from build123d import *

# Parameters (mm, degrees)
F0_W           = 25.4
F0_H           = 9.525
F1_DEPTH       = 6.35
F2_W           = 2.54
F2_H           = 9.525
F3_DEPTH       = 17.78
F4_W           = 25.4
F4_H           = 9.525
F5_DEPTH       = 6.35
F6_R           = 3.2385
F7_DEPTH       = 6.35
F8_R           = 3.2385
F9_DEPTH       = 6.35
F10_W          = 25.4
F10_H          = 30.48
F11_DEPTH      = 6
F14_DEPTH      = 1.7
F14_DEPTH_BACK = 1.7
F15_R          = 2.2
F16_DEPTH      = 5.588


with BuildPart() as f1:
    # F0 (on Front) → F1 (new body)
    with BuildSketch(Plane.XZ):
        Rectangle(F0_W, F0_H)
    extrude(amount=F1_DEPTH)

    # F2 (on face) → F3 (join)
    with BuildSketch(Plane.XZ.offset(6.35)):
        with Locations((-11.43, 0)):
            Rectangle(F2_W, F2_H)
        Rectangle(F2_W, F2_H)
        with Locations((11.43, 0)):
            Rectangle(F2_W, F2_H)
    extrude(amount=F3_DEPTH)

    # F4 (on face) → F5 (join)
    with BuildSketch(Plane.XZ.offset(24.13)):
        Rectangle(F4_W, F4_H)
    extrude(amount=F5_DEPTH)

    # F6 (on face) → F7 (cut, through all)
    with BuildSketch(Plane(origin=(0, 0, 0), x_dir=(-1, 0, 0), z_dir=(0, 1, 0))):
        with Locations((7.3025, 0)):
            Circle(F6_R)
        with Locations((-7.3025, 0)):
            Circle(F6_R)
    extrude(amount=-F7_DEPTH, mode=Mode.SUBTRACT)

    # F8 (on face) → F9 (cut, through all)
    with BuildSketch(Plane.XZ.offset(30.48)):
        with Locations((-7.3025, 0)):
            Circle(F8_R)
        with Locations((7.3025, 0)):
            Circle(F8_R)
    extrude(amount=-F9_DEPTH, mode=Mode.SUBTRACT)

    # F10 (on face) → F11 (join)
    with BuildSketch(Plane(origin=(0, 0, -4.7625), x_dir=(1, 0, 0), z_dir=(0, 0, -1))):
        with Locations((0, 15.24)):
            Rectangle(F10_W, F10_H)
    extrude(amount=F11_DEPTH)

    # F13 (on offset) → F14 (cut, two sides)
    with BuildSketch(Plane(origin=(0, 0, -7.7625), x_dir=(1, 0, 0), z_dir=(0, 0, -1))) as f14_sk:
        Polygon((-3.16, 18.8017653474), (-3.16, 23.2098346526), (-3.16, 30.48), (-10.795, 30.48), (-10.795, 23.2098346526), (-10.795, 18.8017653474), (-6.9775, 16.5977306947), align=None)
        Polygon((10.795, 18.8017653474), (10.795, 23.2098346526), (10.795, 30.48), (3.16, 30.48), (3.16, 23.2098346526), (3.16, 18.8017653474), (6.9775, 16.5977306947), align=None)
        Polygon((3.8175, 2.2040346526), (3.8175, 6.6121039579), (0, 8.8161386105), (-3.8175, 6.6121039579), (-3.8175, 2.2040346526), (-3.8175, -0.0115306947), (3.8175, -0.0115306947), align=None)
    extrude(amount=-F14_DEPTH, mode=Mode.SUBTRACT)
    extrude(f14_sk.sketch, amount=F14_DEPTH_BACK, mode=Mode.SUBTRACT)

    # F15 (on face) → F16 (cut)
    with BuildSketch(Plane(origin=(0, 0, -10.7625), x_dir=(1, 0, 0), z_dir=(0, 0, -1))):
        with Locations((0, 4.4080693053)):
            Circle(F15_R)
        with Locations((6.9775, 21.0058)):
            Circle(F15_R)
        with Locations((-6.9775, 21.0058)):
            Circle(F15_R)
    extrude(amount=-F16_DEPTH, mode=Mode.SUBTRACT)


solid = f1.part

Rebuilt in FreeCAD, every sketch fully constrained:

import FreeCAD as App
import Part
import Sketcher

V = App.Vector
Q = App.Units.Quantity


def add_polygon(sketch, points):
    """Adds a closed chain of lines whose ends are joined by coincident constraints."""
    first, n = sketch.GeometryCount, len(points)
    for a, b in zip(points, points[1:] + points[:1]):
        sketch.addGeometry(Part.LineSegment(App.Vector(*a, 0), App.Vector(*b, 0)), False)
    for i in range(n):
        sketch.addConstraint(Sketcher.Constraint("Coincident", first + i, 2, first + (i + 1) % n, 1))

doc = App.newDocument("Part")
body = doc.addObject("PartDesign::Body", "Body")

# Sketch on XZ plane
sketch1 = body.newObject("Sketcher::SketchObject", "Sketch")
sketch1.AttachmentSupport = (doc.getObject("XZ_Plane"), [""])
sketch1.MapMode = "FlatFace"
add_polygon(sketch1, [(-13, 5), (-13, -5), (13, -5), (13, 5)])  # lines 0-3
sketch1.addConstraint([
    Sketcher.Constraint("Vertical", 0),
    Sketcher.Constraint("Horizontal", 1),
    Sketcher.Constraint("Vertical", 2),
    Sketcher.Constraint("Horizontal", 3),
    Sketcher.Constraint("Symmetric", 0, 2, 2, 2, -1, 1),
    Sketcher.Constraint("DistanceX", 1, 1, 1, 2, Q("1 in")),
    Sketcher.Constraint("DistanceY", 0, 2, 0, 1, Q("0.375 in")),
])
pad1 = body.newObject("PartDesign::Pad", "Pad")
pad1.Profile = sketch1
pad1.Length = Q("0.25 in")

# Sketch on XZ plane
sketch2 = body.newObject("Sketcher::SketchObject", "Sketch001")
sketch2.AttachmentSupport = (doc.getObject("XZ_Plane"), [""])
sketch2.MapMode = "FlatFace"
sketch2.AttachmentOffset = App.Placement(V(0, 0, 0.25 * 25.4), App.Rotation())
add_polygon(sketch2, [(-12.7, 4.8), (-12.7, -4.8), (-10.2, -4.8), (-10.2, 4.8)])  # lines 0-3
add_polygon(sketch2, [(-1.3, 4.8), (-1.3, -4.8), (1.3, -4.8), (1.3, 4.8)])  # lines 4-7
add_polygon(sketch2, [(10.2, 4.8), (10.2, -4.8), (12.7, -4.8), (12.7, 4.8)])  # lines 8-11
sketch2.addConstraint([
    Sketcher.Constraint("Vertical", 0),
    Sketcher.Constraint("Horizontal", 1),
    Sketcher.Constraint("Vertical", 2),
    Sketcher.Constraint("Horizontal", 3),
    Sketcher.Constraint("Vertical", 4),
    Sketcher.Constraint("Horizontal", 5),
    Sketcher.Constraint("Vertical", 6),
    Sketcher.Constraint("Horizontal", 7),
    Sketcher.Constraint("Vertical", 8),
    Sketcher.Constraint("Horizontal", 9),
    Sketcher.Constraint("Vertical", 10),
    Sketcher.Constraint("Horizontal", 11),
    Sketcher.Constraint("Symmetric", 4, 2, 6, 2, -1, 1),
    Sketcher.Constraint("Symmetric", 2, 2, 8, 2, -1, 1),
    Sketcher.Constraint("Symmetric", 0, 2, 10, 2, -1, 1),
    Sketcher.Constraint("Horizontal", 1, 2, 4, 2),
    Sketcher.Constraint("Horizontal", 3, 2, 6, 2),
    Sketcher.Constraint("Equal", 3, 5),
    Sketcher.Constraint("DistanceX", 1, 1, 1, 2, Q("0.1 in")),
    Sketcher.Constraint("DistanceX", 0, 2, -1, 1, Q("0.5 in")),
    Sketcher.Constraint("DistanceY", 0, 2, 0, 1, Q("0.375 in")),
])
pad2 = body.newObject("PartDesign::Pad", "Pad001")
pad2.Profile = sketch2
pad2.Length = Q("0.7 in")

# Sketch on XZ plane
sketch3 = body.newObject("Sketcher::SketchObject", "Sketch002")
sketch3.AttachmentSupport = (doc.getObject("XZ_Plane"), [""])
sketch3.MapMode = "FlatFace"
sketch3.AttachmentOffset = App.Placement(V(0, 0, 0.95 * 25.4), App.Rotation())
add_polygon(sketch3, [(-13, 5), (-13, -5), (13, -5), (13, 5)])  # lines 0-3
sketch3.addConstraint([
    Sketcher.Constraint("Vertical", 0),
    Sketcher.Constraint("Horizontal", 1),
    Sketcher.Constraint("Vertical", 2),
    Sketcher.Constraint("Horizontal", 3),
    Sketcher.Constraint("Symmetric", 0, 2, 2, 2, -1, 1),
    Sketcher.Constraint("DistanceX", 1, 1, 1, 2, Q("1 in")),
    Sketcher.Constraint("DistanceY", 0, 2, 0, 1, Q("0.375 in")),
])
pad3 = body.newObject("PartDesign::Pad", "Pad002")
pad3.Profile = sketch3
pad3.Length = Q("0.25 in")

# Sketch on XZ plane
sketch4 = body.newObject("Sketcher::SketchObject", "Sketch003")
sketch4.AttachmentSupport = (doc.getObject("XZ_Plane"), [""])
sketch4.MapMode = "FlatFace"
sketch4.addGeometry([
    Part.Circle(V(-7.3, 0, 0), V(0, 0, 1), 3.2),
    Part.Circle(V(7.3, 0, 0), V(0, 0, 1), 3.2),
], False)
sketch4.addConstraint([
    Sketcher.Constraint("Equal", 0, 1),
    Sketcher.Constraint("Symmetric", 0, 3, 1, 3, -1, 1),
    Sketcher.Constraint("PointOnObject", 0, 3, -1),
    Sketcher.Constraint("Diameter", 0, Q("0.255 in")),
    Sketcher.Constraint("DistanceX", 0, 3, 1, 3, Q("0.575 in")),
])
pocket1 = body.newObject("PartDesign::Pocket", "Pocket")
pocket1.Profile = sketch4
pocket1.Length = Q("0.25 in")
pocket1.Reversed = True

# Sketch on XZ plane
sketch5 = body.newObject("Sketcher::SketchObject", "Sketch004")
sketch5.AttachmentSupport = (doc.getObject("XZ_Plane"), [""])
sketch5.MapMode = "FlatFace"
sketch5.AttachmentOffset = App.Placement(V(0, 0, 1.2 * 25.4), App.Rotation())
sketch5.addGeometry([
    Part.Circle(V(-7.3, 0, 0), V(0, 0, 1), 3.2),
    Part.Circle(V(7.3, 0, 0), V(0, 0, 1), 3.2),
], False)
sketch5.addConstraint([
    Sketcher.Constraint("Equal", 0, 1),
    Sketcher.Constraint("Symmetric", 0, 3, 1, 3, -1, 1),
    Sketcher.Constraint("PointOnObject", 0, 3, -1),
    Sketcher.Constraint("Diameter", 0, Q("0.255 in")),
    Sketcher.Constraint("DistanceX", 0, 3, 1, 3, Q("0.575 in")),
])
pocket2 = body.newObject("PartDesign::Pocket", "Pocket001")
pocket2.Profile = sketch5
pocket2.Length = Q("0.25 in")

# Sketch on XY plane
sketch6 = body.newObject("Sketcher::SketchObject", "Sketch005")
sketch6.AttachmentSupport = (doc.getObject("XY_Plane"), [""])
sketch6.MapMode = "FlatFace"
sketch6.AttachmentOffset = App.Placement(V(0, 0, -0.1875 * 25.4), App.Rotation())
add_polygon(sketch6, [(-13, -30), (-13, 0), (13, 0), (13, -30)])  # lines 0-3
sketch6.addConstraint([
    Sketcher.Constraint("Vertical", 0),
    Sketcher.Constraint("Horizontal", 1),
    Sketcher.Constraint("Vertical", 2),
    Sketcher.Constraint("Horizontal", 3),
    Sketcher.Constraint("Symmetric", 0, 2, 1, 2, -1, 1),
    Sketcher.Constraint("DistanceX", 1, 1, 1, 2, Q("1 in")),
    Sketcher.Constraint("DistanceY", 0, 1, 0, 2, Q("1.2 in")),
])
pad4 = body.newObject("PartDesign::Pad", "Pad003")
pad4.Profile = sketch6
pad4.Length = 6
pad4.Reversed = True

# Sketch on XY plane
sketch7 = body.newObject("Sketcher::SketchObject", "Sketch006")
sketch7.AttachmentSupport = (doc.getObject("XY_Plane"), [""])
sketch7.MapMode = "FlatFace"
sketch7.AttachmentOffset = App.Placement(V(0, 0, -7.7625), App.Rotation())
add_polygon(sketch7, [(-3.2, -18.8), (-3.2, -30.5), (-10.8, -30.5), (-10.8, -18.8), (-7, -16.6)])  # lines 0-4
add_polygon(sketch7, [(10.8, -18.8), (10.8, -30.5), (3.2, -30.5), (3.2, -18.8), (7, -16.6)])  # lines 5-9
add_polygon(sketch7, [(3.8, -6.6), (0, -8.8), (-3.8, -6.6), (-3.8, 0), (3.8, 0)])  # lines 10-14
sketch7.addConstraint([
    Sketcher.Constraint("Vertical", 0),
    Sketcher.Constraint("Horizontal", 1),
    Sketcher.Constraint("Vertical", 2),
    Sketcher.Constraint("Vertical", 5),
    Sketcher.Constraint("Horizontal", 6),
    Sketcher.Constraint("Vertical", 7),
    Sketcher.Constraint("Vertical", 12),
    Sketcher.Constraint("Horizontal", 13),
    Sketcher.Constraint("Vertical", 14),
    Sketcher.Constraint("Symmetric", 1, 2, 5, 2, -2),
    Sketcher.Constraint("Symmetric", 4, 2, 7, 2, -2),
    Sketcher.Constraint("Symmetric", 3, 2, 8, 2, -2),
    Sketcher.Constraint("Symmetric", 11, 2, 14, 2, -2),
    Sketcher.Constraint("PointOnObject", 10, 2, -2),
    Sketcher.Constraint("Parallel", 3, 8),
    Sketcher.Constraint("Parallel", 4, 9),
    Sketcher.Constraint("Parallel", 8, 10),
    Sketcher.Constraint("Horizontal", 2, 2, 4, 2),
    Sketcher.Constraint("Equal", 6, 13),
    Sketcher.Constraint("Angle", 3, Q("30 deg")),
    Sketcher.Constraint("DistanceY", 0, 2, -1, 1, Q("1.2 in")),
    Sketcher.Constraint("DistanceX", 1, 2, 5, 2, Q("0.85 in")),
    Sketcher.Constraint("DistanceX", 1, 2, 1, 1, Q("7.635 mm")),
    Sketcher.Constraint("DistanceY", 0, 2, 0, 1, Q("11.678235 mm")),
    Sketcher.Constraint("DistanceY", 12, 1, 12, 2, Q("6.623635 mm")),
    Sketcher.Constraint("DistanceY", 10, 2, -1, 1, Q("8.816139 mm")),
])
pocket3 = body.newObject("PartDesign::Pocket", "Pocket002")
pocket3.Profile = sketch7
pocket3.Type = "TwoLengths"
pocket3.Length = 1.7
pocket3.Length2 = 1.7
pocket3.Reversed = True

# Sketch on XY plane
sketch8 = body.newObject("Sketcher::SketchObject", "Sketch007")
sketch8.AttachmentSupport = (doc.getObject("XY_Plane"), [""])
sketch8.MapMode = "FlatFace"
sketch8.AttachmentOffset = App.Placement(V(0, 0, -10.7625), App.Rotation())
sketch8.addGeometry([
    Part.Circle(V(0, -4.4, 0), V(0, 0, 1), 2.2),
    Part.Circle(V(7, -21, 0), V(0, 0, 1), 2.2),
    Part.Circle(V(-7, -21, 0), V(0, 0, 1), 2.2),
], False)
sketch8.addConstraint([
    Sketcher.Constraint("Equal", 0, 1),
    Sketcher.Constraint("Equal", 1, 2),
    Sketcher.Constraint("Symmetric", 1, 3, 2, 3, -2),
    Sketcher.Constraint("PointOnObject", 0, 3, -2),
    Sketcher.Constraint("Diameter", 0, Q("4.4 mm")),
    Sketcher.Constraint("DistanceY", 1, 3, -1, 1, Q("0.827 in")),
    Sketcher.Constraint("DistanceX", -1, 1, 1, 3, Q("6.9775 mm")),
    Sketcher.Constraint("DistanceY", 0, 3, -1, 1, Q("4.408069 mm")),
])
pocket4 = body.newObject("PartDesign::Pocket", "Pocket003")
pocket4.Profile = sketch8
pocket4.Length = Q("0.22 in")
pocket4.Reversed = True

doc.recompute()
